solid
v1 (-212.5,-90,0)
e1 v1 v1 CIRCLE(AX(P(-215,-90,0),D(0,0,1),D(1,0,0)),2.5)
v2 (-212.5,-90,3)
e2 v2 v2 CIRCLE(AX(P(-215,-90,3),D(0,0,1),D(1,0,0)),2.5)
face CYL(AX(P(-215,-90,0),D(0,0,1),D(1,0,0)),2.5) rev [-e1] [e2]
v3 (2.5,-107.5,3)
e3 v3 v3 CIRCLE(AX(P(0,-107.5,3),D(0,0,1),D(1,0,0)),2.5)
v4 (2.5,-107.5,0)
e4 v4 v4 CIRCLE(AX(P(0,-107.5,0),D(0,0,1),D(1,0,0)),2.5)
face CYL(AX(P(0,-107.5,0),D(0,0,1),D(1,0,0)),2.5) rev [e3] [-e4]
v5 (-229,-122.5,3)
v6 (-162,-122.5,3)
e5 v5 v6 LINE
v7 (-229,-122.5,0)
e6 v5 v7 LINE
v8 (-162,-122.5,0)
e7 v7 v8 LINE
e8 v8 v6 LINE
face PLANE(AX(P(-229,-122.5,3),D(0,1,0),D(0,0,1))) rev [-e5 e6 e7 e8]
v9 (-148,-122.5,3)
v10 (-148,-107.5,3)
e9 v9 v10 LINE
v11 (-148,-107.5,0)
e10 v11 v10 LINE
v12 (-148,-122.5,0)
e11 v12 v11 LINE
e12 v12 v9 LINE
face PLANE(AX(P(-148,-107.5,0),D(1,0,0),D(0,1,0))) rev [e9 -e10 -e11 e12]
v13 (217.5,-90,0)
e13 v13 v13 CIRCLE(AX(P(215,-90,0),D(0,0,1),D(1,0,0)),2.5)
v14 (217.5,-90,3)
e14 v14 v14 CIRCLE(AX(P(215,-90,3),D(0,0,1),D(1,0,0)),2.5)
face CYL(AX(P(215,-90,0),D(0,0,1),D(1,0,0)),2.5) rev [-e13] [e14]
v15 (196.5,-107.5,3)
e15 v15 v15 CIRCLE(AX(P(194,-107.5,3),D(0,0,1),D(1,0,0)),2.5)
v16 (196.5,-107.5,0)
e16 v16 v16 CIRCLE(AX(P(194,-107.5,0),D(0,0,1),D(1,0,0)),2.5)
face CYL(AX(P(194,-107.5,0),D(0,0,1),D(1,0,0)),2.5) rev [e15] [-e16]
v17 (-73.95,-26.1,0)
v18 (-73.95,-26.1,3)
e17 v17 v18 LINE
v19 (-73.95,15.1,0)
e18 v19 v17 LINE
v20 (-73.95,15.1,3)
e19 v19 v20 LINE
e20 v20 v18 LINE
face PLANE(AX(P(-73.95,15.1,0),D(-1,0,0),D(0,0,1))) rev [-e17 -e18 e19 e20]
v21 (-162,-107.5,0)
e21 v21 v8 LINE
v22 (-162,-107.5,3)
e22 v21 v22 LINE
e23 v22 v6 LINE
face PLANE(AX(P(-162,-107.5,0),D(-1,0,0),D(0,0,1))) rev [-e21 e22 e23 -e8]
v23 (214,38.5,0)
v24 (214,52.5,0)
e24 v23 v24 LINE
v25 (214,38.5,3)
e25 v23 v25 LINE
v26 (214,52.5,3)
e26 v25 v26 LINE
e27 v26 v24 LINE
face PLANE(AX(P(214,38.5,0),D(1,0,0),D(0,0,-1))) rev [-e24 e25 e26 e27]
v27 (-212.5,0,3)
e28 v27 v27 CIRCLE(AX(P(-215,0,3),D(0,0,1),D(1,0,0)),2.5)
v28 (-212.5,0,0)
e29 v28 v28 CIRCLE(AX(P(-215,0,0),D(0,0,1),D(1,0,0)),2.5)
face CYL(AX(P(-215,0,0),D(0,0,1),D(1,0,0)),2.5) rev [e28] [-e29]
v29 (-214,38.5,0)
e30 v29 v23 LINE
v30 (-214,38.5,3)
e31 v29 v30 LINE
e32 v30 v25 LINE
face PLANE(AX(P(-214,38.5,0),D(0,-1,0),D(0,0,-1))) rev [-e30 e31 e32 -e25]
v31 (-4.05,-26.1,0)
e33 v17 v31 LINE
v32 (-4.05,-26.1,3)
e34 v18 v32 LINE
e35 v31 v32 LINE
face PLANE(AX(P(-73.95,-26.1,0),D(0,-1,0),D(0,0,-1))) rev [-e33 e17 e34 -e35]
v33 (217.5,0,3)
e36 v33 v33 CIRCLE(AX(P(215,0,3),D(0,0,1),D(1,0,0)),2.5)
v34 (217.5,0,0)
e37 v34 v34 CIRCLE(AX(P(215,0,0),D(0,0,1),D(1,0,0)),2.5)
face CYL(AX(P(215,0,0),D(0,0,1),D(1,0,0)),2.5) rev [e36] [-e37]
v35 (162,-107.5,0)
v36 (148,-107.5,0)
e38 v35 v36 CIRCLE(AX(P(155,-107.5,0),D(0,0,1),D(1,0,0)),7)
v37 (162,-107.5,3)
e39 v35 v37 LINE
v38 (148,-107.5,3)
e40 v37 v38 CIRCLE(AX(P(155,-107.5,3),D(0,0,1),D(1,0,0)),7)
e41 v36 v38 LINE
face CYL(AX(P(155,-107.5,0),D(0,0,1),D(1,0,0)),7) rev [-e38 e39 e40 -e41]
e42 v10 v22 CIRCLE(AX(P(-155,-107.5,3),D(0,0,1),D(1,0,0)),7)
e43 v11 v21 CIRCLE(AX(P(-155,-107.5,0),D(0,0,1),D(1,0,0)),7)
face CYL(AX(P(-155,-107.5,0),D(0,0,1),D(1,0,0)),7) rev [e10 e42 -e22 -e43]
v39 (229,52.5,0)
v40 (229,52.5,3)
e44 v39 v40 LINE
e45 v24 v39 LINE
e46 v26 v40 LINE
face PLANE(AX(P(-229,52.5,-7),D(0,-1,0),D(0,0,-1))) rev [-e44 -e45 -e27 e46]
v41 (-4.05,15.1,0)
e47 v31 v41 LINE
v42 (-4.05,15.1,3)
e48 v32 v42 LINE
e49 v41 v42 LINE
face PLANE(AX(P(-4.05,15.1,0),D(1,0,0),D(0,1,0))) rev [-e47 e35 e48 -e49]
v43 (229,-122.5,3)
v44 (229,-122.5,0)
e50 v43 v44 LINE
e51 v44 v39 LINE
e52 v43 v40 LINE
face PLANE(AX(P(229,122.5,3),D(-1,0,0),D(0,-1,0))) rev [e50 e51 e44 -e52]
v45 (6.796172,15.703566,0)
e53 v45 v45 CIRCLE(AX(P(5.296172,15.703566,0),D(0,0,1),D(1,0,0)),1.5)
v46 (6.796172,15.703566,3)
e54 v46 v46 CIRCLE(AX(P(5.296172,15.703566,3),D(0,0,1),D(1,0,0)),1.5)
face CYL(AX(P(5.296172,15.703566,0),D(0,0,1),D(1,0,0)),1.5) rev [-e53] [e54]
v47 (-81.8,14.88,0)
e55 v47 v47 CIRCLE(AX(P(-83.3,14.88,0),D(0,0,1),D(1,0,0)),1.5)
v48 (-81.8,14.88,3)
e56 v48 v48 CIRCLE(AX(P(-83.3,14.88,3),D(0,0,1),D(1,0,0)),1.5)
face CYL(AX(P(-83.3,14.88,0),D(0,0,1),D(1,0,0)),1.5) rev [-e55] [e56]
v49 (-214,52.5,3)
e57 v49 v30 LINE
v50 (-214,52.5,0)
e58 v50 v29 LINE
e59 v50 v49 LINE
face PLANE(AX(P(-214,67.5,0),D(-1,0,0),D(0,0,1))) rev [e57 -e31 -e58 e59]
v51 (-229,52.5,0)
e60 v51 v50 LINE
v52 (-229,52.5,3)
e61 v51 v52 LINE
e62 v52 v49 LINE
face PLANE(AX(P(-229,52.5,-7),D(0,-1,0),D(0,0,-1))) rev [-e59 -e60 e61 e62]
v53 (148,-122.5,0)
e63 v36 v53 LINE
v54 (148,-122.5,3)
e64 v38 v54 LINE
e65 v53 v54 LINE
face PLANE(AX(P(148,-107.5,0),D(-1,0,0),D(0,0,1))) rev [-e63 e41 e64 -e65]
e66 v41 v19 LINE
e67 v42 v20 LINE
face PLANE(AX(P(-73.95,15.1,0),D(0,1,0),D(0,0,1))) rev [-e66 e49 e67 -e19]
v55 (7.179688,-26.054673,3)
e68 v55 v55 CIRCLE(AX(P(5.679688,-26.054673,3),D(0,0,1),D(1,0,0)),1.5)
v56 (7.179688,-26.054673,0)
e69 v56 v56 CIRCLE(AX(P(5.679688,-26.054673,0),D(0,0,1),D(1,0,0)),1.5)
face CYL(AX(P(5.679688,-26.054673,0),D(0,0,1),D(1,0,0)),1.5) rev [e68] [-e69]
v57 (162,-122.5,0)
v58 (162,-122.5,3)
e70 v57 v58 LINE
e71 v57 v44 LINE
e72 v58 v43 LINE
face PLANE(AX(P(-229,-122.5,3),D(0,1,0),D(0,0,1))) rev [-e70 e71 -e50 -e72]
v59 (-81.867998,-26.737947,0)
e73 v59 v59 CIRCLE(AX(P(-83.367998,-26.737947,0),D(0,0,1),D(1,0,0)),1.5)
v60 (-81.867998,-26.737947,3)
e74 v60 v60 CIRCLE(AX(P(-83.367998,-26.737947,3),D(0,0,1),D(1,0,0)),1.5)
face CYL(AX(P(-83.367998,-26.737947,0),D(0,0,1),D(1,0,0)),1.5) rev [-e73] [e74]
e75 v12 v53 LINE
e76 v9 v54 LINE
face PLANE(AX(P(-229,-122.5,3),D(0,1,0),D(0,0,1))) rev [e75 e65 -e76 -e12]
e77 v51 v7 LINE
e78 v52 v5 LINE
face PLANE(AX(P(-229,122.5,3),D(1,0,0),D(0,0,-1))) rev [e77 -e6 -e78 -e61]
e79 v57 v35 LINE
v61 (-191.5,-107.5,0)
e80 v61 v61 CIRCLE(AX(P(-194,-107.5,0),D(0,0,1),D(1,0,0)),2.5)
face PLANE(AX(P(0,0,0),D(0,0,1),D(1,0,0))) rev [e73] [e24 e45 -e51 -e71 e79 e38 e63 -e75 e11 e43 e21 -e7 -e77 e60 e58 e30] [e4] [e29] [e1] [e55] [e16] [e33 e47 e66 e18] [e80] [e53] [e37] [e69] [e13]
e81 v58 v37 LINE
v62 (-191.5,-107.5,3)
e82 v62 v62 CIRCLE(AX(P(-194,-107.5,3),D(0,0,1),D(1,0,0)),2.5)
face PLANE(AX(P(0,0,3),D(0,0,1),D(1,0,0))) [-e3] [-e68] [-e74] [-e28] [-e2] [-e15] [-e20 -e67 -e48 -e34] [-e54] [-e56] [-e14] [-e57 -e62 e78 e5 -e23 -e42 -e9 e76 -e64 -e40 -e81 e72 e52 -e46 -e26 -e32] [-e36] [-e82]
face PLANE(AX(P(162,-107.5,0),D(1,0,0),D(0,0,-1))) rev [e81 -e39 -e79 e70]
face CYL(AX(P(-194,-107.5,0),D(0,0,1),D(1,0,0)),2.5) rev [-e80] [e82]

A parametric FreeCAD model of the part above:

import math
import FreeCAD as App
import Part
import Sketcher


def add_polygon(sketch, points):
    """Adds a closed chain of lines whose ends are joined by coincident constraints."""
    first, n = sketch.GeometryCount, len(points)
    for a, b in zip(points, points[1:] + points[:1]):
        sketch.addGeometry(Part.LineSegment(App.Vector(*a, 0), App.Vector(*b, 0)), False)
    for i in range(n):
        sketch.addConstraint(Sketcher.Constraint("Coincident", first + i, 2, first + (i + 1) % n, 1))

doc = App.newDocument("Part")
body = doc.addObject("PartDesign::Body", "Body")

sketch1 = body.newObject("Sketcher::SketchObject", "Sketch")
sketch1.AttachmentSupport = (doc.getObject("XY_Plane"), [""])
sketch1.MapMode = "FlatFace"
add_polygon(sketch1, [(-229, 122), (-229, -122), (229, -122), (229, 122)])
sketch1.addConstraint(Sketcher.Constraint("Vertical", 0))
sketch1.addConstraint(Sketcher.Constraint("Horizontal", 1))
sketch1.addConstraint(Sketcher.Constraint("Vertical", 2))
sketch1.addConstraint(Sketcher.Constraint("Horizontal", 3))
sketch1.addConstraint(Sketcher.Constraint("Symmetric", 0, 2, 2, 2, -1, 1))
sketch1.addConstraint(Sketcher.Constraint("DistanceX", 1, 1, 1, 2, 458.0))
sketch1.addConstraint(Sketcher.Constraint("DistanceY", 0, 2, 0, 1, 245.0))
pad1 = body.newObject("PartDesign::Pad", "Pad")
pad1.Profile = sketch1
pad1.Length = 3

sketch2 = body.newObject("Sketcher::SketchObject", "Sketch001")
sketch2.AttachmentSupport = (doc.getObject("XY_Plane"), [""])
sketch2.MapMode = "FlatFace"
sketch2.AttachmentOffset = App.Placement(App.Vector(0, 0, 3), App.Rotation())
sketch2.addGeometry(Part.LineSegment(App.Vector(-148, -122, 0), App.Vector(-148, -108, 0)), False)
sketch2.addGeometry(Part.ArcOfCircle(Part.Circle(App.Vector(-155, -108, 0), App.Vector(0, 0, 1), 7), math.radians(0), math.radians(180)), False)
sketch2.addGeometry(Part.LineSegment(App.Vector(-162, -108, 0), App.Vector(-162, -122, 0)), False)
sketch2.addGeometry(Part.ArcOfCircle(Part.Circle(App.Vector(-155, -122, 0), App.Vector(0, 0, 1), 7), math.radians(180), math.radians(360)), False)
sketch2.addGeometry(Part.LineSegment(App.Vector(162, -122, 0), App.Vector(162, -108, 0)), False)
sketch2.addGeometry(Part.ArcOfCircle(Part.Circle(App.Vector(155, -108, 0), App.Vector(0, 0, 1), 7), math.radians(0), math.radians(180)), False)
sketch2.addGeometry(Part.LineSegment(App.Vector(148, -108, 0), App.Vector(148, -122, 0)), False)
sketch2.addGeometry(Part.ArcOfCircle(Part.Circle(App.Vector(155, -122, 0), App.Vector(0, 0, 1), 7), math.radians(180), math.radians(360)), False)
sketch2.addConstraint(Sketcher.Constraint("Tangent", 0, 2, 1, 1))
sketch2.addConstraint(Sketcher.Constraint("Tangent", 1, 2, 2, 1))
sketch2.addConstraint(Sketcher.Constraint("Tangent", 2, 2, 3, 1))
sketch2.addConstraint(Sketcher.Constraint("Tangent", 3, 2, 0, 1))
sketch2.addConstraint(Sketcher.Constraint("Tangent", 4, 2, 5, 1))
sketch2.addConstraint(Sketcher.Constraint("Tangent", 5, 2, 6, 1))
sketch2.addConstraint(Sketcher.Constraint("Tangent", 6, 2, 7, 1))
sketch2.addConstraint(Sketcher.Constraint("Tangent", 7, 2, 4, 1))
sketch2.addConstraint(Sketcher.Constraint("Vertical", 0))
sketch2.addConstraint(Sketcher.Constraint("Vertical", 2))
sketch2.addConstraint(Sketcher.Constraint("Vertical", 4))
sketch2.addConstraint(Sketcher.Constraint("Vertical", 6))
sketch2.addConstraint(Sketcher.Constraint("Equal", 3, 5))
sketch2.addConstraint(Sketcher.Constraint("Symmetric", 1, 3, 5, 3, -2))
sketch2.addConstraint(Sketcher.Constraint("Horizontal", 3, 3, 7, 3))
sketch2.addConstraint(Sketcher.Constraint("Radius", 1, 7.0))
sketch2.addConstraint(Sketcher.Constraint("DistanceY", 0, 1, 0, 2, 15.0))
sketch2.addConstraint(Sketcher.Constraint("DistanceX", 1, 3, -1, 1, 155.0))
sketch2.addConstraint(Sketcher.Constraint("DistanceY", 1, 3, -1, 1, 107.5))
pocket1 = body.newObject("PartDesign::Pocket", "Pocket")
pocket1.Profile = sketch2
pocket1.Type = "ThroughAll"

sketch3 = body.newObject("Sketcher::SketchObject", "Sketch002")
sketch3.AttachmentSupport = (doc.getObject("XY_Plane"), [""])
sketch3.MapMode = "FlatFace"
sketch3.AttachmentOffset = App.Placement(App.Vector(0, 0, 3), App.Rotation())
sketch3.addGeometry(Part.Circle(App.Vector(-194, 112.5, 0), App.Vector(0, 0, 1), 2.5), False)
sketch3.addGeometry(Part.Circle(App.Vector(-194, -107.5, 0), App.Vector(0, 0, 1), 2.5), False)
sketch3.addGeometry(Part.Circle(App.Vector(194, -107.5, 0), App.Vector(0, 0, 1), 2.5), False)
sketch3.addGeometry(Part.Circle(App.Vector(194, 112.5, 0), App.Vector(0, 0, 1), 2.5), False)
sketch3.addGeometry(Part.Circle(App.Vector(-215, 0, 0), App.Vector(0, 0, 1), 2.5), False)
sketch3.addGeometry(Part.Circle(App.Vector(-215, -90, 0), App.Vector(0, 0, 1), 2.5), False)
sketch3.addGeometry(Part.Circle(App.Vector(-215, 90, 0), App.Vector(0, 0, 1), 2.5), False)
sketch3.addGeometry(Part.Circle(App.Vector(215, 0, 0), App.Vector(0, 0, 1), 2.5), False)
sketch3.addGeometry(Part.Circle(App.Vector(215, -90, 0), App.Vector(0, 0, 1), 2.5), False)
sketch3.addGeometry(Part.Circle(App.Vector(215, 90, 0), App.Vector(0, 0, 1), 2.5), False)
sketch3.addGeometry(Part.Circle(App.Vector(0, 112.5, 0), App.Vector(0, 0, 1), 2.5), False)
sketch3.addGeometry(Part.Circle(App.Vector(0, -107.5, 0), App.Vector(0, 0, 1), 2.5), False)
sketch3.addConstraint(Sketcher.Constraint("Equal", 0, 1))
sketch3.addConstraint(Sketcher.Constraint("Equal", 1, 2))
sketch3.addConstraint(Sketcher.Constraint("Equal", 2, 3))
sketch3.addConstraint(Sketcher.Constraint("Equal", 3, 4))
sketch3.addConstraint(Sketcher.Constraint("Equal", 4, 5))
sketch3.addConstraint(Sketcher.Constraint("Equal", 5, 6))
sketch3.addConstraint(Sketcher.Constraint("Equal", 6, 7))
sketch3.addConstraint(Sketcher.Constraint("Equal", 7, 8))
sketch3.addConstraint(Sketcher.Constraint("Equal", 8, 9))
sketch3.addConstraint(Sketcher.Constraint("Equal", 9, 10))
sketch3.addConstraint(Sketcher.Constraint("Equal", 10, 11))
sketch3.addConstraint(Sketcher.Constraint("Symmetric", 4, 3, 7, 3, -1, 1))
sketch3.addConstraint(Sketcher.Constraint("Symmetric", 6, 3, 8, 3, -1, 1))
sketch3.addConstraint(Sketcher.Constraint("Symmetric", 5, 3, 9, 3, -1, 1))
sketch3.addConstraint(Sketcher.Constraint("Symmetric", 1, 3, 2, 3, -2))
sketch3.addConstraint(Sketcher.Constraint("Symmetric", 0, 3, 3, 3, -2))
sketch3.addConstraint(Sketcher.Constraint("Symmetric", 5, 3, 8, 3, -2))
sketch3.addConstraint(Sketcher.Constraint("PointOnObject", 4, 3, -1))
sketch3.addConstraint(Sketcher.Constraint("PointOnObject", 10, 3, -2))
sketch3.addConstraint(Sketcher.Constraint("PointOnObject", 11, 3, -2))
sketch3.addConstraint(Sketcher.Constraint("Horizontal", 3, 3, 10, 3))
sketch3.addConstraint(Sketcher.Constraint("Horizontal", 2, 3, 11, 3))
sketch3.addConstraint(Sketcher.Constraint("Vertical", 0, 3, 1, 3))
sketch3.addConstraint(Sketcher.Constraint("Vertical", 4, 3, 5, 3))
sketch3.addConstraint(Sketcher.Constraint("Diameter", 0, 5.0))
sketch3.addConstraint(Sketcher.Constraint("DistanceX", 0, 3, -1, 1, 194.0))
sketch3.addConstraint(Sketcher.Constraint("DistanceX", 4, 3, -1, 1, 215.0))
sketch3.addConstraint(Sketcher.Constraint("DistanceY", 5, 3, -1, 1, 90.0))
sketch3.addConstraint(Sketcher.Constraint("DistanceY", 1, 3, 0, 3, 220.0))
sketch3.addConstraint(Sketcher.Constraint("DistanceY", -1, 1, 0, 3, 112.5))
pocket2 = body.newObject("PartDesign::Pocket", "Pocket001")
pocket2.Profile = sketch3
pocket2.Type = "ThroughAll"

sketch4 = body.newObject("Sketcher::SketchObject", "Sketch003")
sketch4.AttachmentSupport = (doc.getObject("XY_Plane"), [""])
sketch4.MapMode = "FlatFace"
sketch4.AttachmentOffset = App.Placement(App.Vector(0, 0, 3), App.Rotation())
sketch4.addGeometry(Part.Circle(App.Vector(-39, 91, 0), App.Vector(0, 0, 1), 12), False)
sketch4.addGeometry(Part.Circle(App.Vector(39, 91, 0), App.Vector(0, 0, 1), 12), False)
sketch4.addConstraint(Sketcher.Constraint("Equal", 0, 1))
sketch4.addConstraint(Sketcher.Constraint("Symmetric", 0, 3, 1, 3, -2))
sketch4.addConstraint(Sketcher.Constraint("Diameter", 0, 23.0))
sketch4.addConstraint(Sketcher.Constraint("DistanceX", 0, 3, -1, 1, 39.0))
sketch4.addConstraint(Sketcher.Constraint("DistanceY", -1, 1, 0, 3, 91.0))
pocket3 = body.newObject("PartDesign::Pocket", "Pocket002")
pocket3.Profile = sketch4
pocket3.Type = "ThroughAll"

sketch5 = body.newObject("Sketcher::SketchObject", "Sketch004")
sketch5.AttachmentSupport = (doc.getObject("XY_Plane"), [""])
sketch5.MapMode = "FlatFace"
sketch5.AttachmentOffset = App.Placement(App.Vector(0, 0, 3), App.Rotation())
add_polygon(sketch5, [(-214, 68), (-214, 38), (214, 38), (214, 68)])
sketch5.addConstraint(Sketcher.Constraint("Vertical", 0))
sketch5.addConstraint(Sketcher.Constraint("Horizontal", 1))
sketch5.addConstraint(Sketcher.Constraint("Vertical", 2))
sketch5.addConstraint(Sketcher.Constraint("Horizontal", 3))
sketch5.addConstraint(Sketcher.Constraint("DistanceX", 1, 1, 1, 2, 428.0))
sketch5.addConstraint(Sketcher.Constraint("DistanceY", 0, 2, 0, 1, 29.0))
sketch5.addConstraint(Sketcher.Constraint("DistanceX", 0, 2, -1, 1, 214.0))
sketch5.addConstraint(Sketcher.Constraint("DistanceY", -1, 1, 0, 2, 38.5))
pocket4 = body.newObject("PartDesign::Pocket", "Pocket003")
pocket4.Profile = sketch5
pocket4.Type = "ThroughAll"

sketch6 = body.newObject("Sketcher::SketchObject", "Sketch005")
sketch6.AttachmentSupport = (doc.getObject("XY_Plane"), [""])
sketch6.MapMode = "FlatFace"
sketch6.AttachmentOffset = App.Placement(App.Vector(0, 0, 3), App.Rotation())
sketch6.addGeometry(Part.Circle(App.Vector(5.3, 15.7, 0), App.Vector(0, 0, 1), 1.5), False)
sketch6.addGeometry(Part.Circle(App.Vector(5.7, -26.1, 0), App.Vector(0, 0, 1), 1.5), False)
sketch6.addGeometry(Part.Circle(App.Vector(-83.3, 14.9, 0), App.Vector(0, 0, 1), 1.5), False)
sketch6.addGeometry(Part.Circle(App.Vector(-83.4, -26.7, 0), App.Vector(0, 0, 1), 1.5), False)
add_polygon(sketch6, [(-74, 15.1), (-74, -26.1), (-4, -26.1), (-4, 15.1)])
sketch6.addConstraint(Sketcher.Constraint("Vertical", 4))
sketch6.addConstraint(Sketcher.Constraint("Horizontal", 5))
sketch6.addConstraint(Sketcher.Constraint("Vertical", 6))
sketch6.addConstraint(Sketcher.Constraint("Horizontal", 7))
sketch6.addConstraint(Sketcher.Constraint("Equal", 0, 1))
sketch6.addConstraint(Sketcher.Constraint("Equal", 1, 2))
sketch6.addConstraint(Sketcher.Constraint("Equal", 2, 3))
sketch6.addConstraint(Sketcher.Constraint("Diameter", 0, 3.0))
sketch6.addConstraint(Sketcher.Constraint("DistanceX", 5, 1, 5, 2, 69.9))
sketch6.addConstraint(Sketcher.Constraint("DistanceY", 4, 2, 4, 1, 41.2))
sketch6.addConstraint(Sketcher.Constraint("DistanceX", 2, 3, -1, 1, 83.3))
sketch6.addConstraint(Sketcher.Constraint("DistanceY", 4, 2, -1, 1, 26.1))
sketch6.addConstraint(Sketcher.Constraint("DistanceY", -1, 1, 2, 3, 14.88))
sketch6.addConstraint(Sketcher.Constraint("DistanceX", 4, 2, -1, 1, 73.95))
sketch6.addConstraint(Sketcher.Constraint("DistanceY", 1, 3, 0, 3, 41.758239))
sketch6.addConstraint(Sketcher.Constraint("DistanceX", 3, 3, 0, 3, 88.66417))
sketch6.addConstraint(Sketcher.Constraint("DistanceX", -1, 1, 0, 3, 5.296172))
sketch6.addConstraint(Sketcher.Constraint("DistanceY", -1, 1, 0, 3, 15.703566))
sketch6.addConstraint(Sketcher.Constraint("DistanceX", -1, 1, 1, 3, 5.679688))
sketch6.addConstraint(Sketcher.Constraint("DistanceY", 3, 3, -1, 1, 26.737947))
pocket5 = body.newObject("PartDesign::Pocket", "Pocket004")
pocket5.Profile = sketch6
pocket5.Type = "ThroughAll"

sketch7 = body.newObject("Sketcher::SketchObject", "Sketch006")
sketch7.AttachmentSupport = (doc.getObject("XY_Plane"), [""])
sketch7.MapMode = "FlatFace"
sketch7.AttachmentOffset = App.Placement(App.Vector(0, 0, 3), App.Rotation())
add_polygon(sketch7, [(-229, 122), (-229, 52), (229, 52), (229, 122)])
sketch7.addConstraint(Sketcher.Constraint("Vertical", 0))
sketch7.addConstraint(Sketcher.Constraint("Horizontal", 1))
sketch7.addConstraint(Sketcher.Constraint("Vertical", 2))
sketch7.addConstraint(Sketcher.Constraint("Horizontal", 3))
sketch7.addConstraint(Sketcher.Constraint("DistanceX", 1, 1, 1, 2, 458.0))
sketch7.addConstraint(Sketcher.Constraint("DistanceY", 0, 2, 0, 1, 70.0))
sketch7.addConstraint(Sketcher.Constraint("DistanceX", 0, 2, -1, 1, 229.0))
sketch7.addConstraint(Sketcher.Constraint("DistanceY", -1, 1, 0, 2, 52.5))
pocket6 = body.newObject("PartDesign::Pocket", "Pocket005")
pocket6.Profile = sketch7
pocket6.Length = 10

doc.recompute()
